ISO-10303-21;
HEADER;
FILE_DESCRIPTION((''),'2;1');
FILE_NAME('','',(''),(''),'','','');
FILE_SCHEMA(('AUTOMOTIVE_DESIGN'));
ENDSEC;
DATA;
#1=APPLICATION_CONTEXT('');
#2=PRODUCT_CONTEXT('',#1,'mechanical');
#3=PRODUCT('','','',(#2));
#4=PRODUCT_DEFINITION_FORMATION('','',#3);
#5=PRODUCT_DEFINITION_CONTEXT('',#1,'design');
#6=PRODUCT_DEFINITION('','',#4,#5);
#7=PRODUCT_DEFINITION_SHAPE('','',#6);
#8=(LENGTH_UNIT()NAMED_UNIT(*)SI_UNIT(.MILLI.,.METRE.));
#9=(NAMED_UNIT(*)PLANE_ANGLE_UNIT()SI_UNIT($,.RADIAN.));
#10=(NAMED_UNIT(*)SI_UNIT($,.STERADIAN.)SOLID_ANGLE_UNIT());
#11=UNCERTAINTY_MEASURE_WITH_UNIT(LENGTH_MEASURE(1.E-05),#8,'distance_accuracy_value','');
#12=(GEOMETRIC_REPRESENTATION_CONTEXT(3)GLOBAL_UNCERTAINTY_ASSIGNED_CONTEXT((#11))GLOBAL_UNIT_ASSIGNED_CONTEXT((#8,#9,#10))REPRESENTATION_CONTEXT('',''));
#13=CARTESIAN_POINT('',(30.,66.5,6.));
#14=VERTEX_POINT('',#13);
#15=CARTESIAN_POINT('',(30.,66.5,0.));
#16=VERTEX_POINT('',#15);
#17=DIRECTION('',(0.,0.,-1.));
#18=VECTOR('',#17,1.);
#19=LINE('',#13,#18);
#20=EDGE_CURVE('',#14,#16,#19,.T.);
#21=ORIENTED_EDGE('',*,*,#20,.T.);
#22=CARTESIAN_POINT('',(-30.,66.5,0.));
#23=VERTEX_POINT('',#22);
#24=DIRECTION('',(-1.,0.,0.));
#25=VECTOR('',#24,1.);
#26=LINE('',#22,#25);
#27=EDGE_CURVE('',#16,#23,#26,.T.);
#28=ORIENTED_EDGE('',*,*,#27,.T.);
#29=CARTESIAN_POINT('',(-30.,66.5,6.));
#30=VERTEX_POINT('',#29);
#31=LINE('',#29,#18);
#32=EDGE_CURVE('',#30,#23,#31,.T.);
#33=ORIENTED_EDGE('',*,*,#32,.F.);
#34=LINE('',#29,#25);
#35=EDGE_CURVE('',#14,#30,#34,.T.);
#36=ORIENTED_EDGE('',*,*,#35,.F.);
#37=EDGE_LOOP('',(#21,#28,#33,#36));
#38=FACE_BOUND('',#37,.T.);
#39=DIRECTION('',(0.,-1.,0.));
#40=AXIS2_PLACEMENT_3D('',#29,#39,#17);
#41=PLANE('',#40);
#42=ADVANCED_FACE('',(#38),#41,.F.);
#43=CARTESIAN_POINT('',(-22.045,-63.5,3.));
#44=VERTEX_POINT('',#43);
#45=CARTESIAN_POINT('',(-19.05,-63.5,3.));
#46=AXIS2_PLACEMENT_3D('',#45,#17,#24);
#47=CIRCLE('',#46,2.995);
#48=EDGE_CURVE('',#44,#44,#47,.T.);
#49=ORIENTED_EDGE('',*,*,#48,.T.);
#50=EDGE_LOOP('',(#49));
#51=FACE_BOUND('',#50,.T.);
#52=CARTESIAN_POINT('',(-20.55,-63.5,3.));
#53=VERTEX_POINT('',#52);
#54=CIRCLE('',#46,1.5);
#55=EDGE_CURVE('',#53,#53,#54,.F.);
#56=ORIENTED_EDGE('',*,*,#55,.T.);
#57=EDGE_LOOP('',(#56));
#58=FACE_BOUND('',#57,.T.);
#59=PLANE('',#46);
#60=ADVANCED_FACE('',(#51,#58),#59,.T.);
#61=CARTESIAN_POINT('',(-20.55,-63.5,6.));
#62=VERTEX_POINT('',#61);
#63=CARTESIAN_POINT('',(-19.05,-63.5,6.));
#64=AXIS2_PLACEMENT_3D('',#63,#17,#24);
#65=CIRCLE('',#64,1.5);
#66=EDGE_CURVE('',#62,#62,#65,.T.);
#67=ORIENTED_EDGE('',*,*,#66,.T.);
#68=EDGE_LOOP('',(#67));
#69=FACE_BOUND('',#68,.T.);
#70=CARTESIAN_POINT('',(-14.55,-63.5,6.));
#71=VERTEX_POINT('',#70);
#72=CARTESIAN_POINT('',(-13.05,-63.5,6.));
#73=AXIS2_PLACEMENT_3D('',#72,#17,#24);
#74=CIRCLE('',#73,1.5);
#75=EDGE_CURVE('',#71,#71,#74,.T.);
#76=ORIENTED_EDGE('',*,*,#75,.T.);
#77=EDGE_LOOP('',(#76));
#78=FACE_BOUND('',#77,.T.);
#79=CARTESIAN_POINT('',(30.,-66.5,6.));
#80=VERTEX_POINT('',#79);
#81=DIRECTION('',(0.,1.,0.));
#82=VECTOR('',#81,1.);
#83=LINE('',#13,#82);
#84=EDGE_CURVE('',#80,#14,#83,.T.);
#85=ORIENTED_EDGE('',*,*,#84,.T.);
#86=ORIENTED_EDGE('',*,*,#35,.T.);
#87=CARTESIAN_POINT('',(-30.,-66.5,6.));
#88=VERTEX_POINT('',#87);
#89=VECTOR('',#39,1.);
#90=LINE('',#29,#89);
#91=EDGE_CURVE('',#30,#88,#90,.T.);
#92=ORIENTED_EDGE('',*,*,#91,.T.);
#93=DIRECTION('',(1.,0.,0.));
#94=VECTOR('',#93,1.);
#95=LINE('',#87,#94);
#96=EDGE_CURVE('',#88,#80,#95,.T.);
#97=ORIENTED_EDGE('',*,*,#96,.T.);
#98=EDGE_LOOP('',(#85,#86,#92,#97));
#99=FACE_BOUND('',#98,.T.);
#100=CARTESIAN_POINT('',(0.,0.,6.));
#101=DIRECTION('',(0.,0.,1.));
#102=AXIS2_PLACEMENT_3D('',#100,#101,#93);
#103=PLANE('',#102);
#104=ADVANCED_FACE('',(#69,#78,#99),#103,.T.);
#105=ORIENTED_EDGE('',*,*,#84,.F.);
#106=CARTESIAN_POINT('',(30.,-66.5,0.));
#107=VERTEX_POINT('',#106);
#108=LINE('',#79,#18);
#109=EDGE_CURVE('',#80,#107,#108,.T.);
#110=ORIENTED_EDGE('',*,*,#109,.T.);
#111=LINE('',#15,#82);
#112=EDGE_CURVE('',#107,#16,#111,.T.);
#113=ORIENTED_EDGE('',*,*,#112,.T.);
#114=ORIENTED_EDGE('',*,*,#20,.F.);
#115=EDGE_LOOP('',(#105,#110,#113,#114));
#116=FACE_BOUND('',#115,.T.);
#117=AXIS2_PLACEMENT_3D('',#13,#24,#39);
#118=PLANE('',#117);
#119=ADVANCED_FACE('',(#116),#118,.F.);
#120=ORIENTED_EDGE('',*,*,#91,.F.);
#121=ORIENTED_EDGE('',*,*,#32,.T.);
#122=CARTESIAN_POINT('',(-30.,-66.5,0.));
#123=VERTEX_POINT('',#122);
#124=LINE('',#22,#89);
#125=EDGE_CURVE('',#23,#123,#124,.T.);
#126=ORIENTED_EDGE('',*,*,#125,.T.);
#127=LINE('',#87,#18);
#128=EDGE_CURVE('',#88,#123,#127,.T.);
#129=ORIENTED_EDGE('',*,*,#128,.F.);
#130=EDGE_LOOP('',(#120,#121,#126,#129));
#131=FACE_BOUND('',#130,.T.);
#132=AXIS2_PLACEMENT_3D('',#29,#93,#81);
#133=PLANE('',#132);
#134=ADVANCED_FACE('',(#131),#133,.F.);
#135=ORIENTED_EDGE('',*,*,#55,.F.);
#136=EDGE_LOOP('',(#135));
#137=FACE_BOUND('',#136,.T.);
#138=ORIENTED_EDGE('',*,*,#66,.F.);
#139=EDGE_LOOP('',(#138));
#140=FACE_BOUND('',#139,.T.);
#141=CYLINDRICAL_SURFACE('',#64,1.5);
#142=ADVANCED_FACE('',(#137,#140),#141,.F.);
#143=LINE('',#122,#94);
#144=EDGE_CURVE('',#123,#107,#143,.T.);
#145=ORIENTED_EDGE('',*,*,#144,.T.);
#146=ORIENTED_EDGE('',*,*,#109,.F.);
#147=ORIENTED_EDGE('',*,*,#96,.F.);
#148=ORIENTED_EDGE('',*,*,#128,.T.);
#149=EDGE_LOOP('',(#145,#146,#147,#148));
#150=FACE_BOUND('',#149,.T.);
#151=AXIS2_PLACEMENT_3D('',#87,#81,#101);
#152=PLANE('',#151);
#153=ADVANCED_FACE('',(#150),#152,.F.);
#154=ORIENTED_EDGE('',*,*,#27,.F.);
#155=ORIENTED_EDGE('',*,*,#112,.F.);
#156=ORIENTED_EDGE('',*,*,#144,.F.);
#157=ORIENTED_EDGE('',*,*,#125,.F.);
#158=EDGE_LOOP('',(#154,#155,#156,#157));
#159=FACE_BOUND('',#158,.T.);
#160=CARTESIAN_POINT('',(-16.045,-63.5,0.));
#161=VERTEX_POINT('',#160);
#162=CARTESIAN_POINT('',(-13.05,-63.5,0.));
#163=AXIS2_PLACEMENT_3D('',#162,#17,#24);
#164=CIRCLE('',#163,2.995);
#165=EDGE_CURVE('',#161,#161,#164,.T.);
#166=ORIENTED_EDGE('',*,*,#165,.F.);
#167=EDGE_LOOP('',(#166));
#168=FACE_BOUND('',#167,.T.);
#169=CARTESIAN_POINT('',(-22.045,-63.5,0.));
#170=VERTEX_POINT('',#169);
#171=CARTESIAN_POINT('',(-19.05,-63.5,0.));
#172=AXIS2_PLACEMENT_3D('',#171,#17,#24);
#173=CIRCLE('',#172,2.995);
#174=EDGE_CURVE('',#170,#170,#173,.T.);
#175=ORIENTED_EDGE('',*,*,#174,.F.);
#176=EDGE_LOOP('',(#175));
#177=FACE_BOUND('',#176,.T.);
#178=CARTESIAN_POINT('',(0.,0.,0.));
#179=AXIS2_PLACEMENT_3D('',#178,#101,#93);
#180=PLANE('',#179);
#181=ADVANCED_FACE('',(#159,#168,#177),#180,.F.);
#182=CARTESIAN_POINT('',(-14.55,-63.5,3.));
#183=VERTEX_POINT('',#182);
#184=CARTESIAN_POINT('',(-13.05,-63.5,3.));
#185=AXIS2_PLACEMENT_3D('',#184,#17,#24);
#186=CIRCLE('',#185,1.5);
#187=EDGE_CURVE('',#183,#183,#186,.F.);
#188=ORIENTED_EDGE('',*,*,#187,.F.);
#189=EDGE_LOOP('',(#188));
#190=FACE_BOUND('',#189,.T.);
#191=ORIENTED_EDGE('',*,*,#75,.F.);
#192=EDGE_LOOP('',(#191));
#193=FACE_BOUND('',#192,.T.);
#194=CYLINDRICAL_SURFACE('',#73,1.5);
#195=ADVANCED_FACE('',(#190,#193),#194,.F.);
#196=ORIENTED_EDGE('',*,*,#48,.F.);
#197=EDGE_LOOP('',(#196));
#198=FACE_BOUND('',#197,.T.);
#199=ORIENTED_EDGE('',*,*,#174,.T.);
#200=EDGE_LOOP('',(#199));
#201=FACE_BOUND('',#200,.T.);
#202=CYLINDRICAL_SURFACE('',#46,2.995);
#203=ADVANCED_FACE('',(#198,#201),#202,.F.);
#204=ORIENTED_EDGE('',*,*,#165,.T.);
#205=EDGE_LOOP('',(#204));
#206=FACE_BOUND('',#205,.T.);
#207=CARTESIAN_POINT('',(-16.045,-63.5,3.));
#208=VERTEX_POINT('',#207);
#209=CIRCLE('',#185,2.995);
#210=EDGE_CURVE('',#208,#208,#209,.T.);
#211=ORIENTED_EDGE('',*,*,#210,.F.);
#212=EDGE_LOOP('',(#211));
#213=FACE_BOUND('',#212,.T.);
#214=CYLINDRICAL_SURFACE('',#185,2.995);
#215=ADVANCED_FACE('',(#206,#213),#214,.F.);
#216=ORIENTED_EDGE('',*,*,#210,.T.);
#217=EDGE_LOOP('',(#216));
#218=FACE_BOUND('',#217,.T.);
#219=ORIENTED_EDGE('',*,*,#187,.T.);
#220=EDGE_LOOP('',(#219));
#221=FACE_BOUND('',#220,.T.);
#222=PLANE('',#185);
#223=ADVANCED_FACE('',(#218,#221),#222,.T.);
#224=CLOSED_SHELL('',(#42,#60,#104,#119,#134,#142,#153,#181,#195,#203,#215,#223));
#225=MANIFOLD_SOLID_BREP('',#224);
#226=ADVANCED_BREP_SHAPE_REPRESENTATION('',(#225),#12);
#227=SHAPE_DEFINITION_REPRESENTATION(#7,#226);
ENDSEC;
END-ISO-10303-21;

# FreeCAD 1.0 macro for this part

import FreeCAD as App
import Part
import Sketcher
from FreeCAD import Vector
Q = App.Units.Quantity

doc = App.newDocument("Part")
body = doc.addObject("PartDesign::Body", "Body")

# Sketch on XY plane
sketch1 = body.newObject("Sketcher::SketchObject", "Sketch")
sketch1.AttachmentSupport = (doc.getObject("XY_Plane"), [""])
sketch1.MapMode = "FlatFace"
sketch1.addGeometry(Part.LineSegment(Vector(-30, 66, 0), Vector(-30, -66, 0)), False)
sketch1.addGeometry(Part.LineSegment(Vector(-30, -66, 0), Vector(30, -66, 0)), False)
sketch1.addGeometry(Part.LineSegment(Vector(30, -66, 0), Vector(30, 66, 0)), False)
sketch1.addGeometry(Part.LineSegment(Vector(30, 66, 0), Vector(-30, 66, 0)), False)
sketch1.addConstraint(Sketcher.Constraint("Coincident", 0, 2, 1, 1))
sketch1.addConstraint(Sketcher.Constraint("Coincident", 1, 2, 2, 1))
sketch1.addConstraint(Sketcher.Constraint("Coincident", 2, 2, 3, 1))
sketch1.addConstraint(Sketcher.Constraint("Coincident", 3, 2, 0, 1))
sketch1.addConstraint(Sketcher.Constraint("Vertical", 0))
sketch1.addConstraint(Sketcher.Constraint("Horizontal", 1))
sketch1.addConstraint(Sketcher.Constraint("Vertical", 2))
sketch1.addConstraint(Sketcher.Constraint("Horizontal", 3))
sketch1.addConstraint(Sketcher.Constraint("Symmetric", 0, 2, 2, 2, -1, 1))
sketch1.addConstraint(Sketcher.Constraint("DistanceX", 1, 1, 1, 2, Q("60 mm")))
sketch1.addConstraint(Sketcher.Constraint("DistanceY", 0, 2, 0, 1, Q("133 mm")))
pad1 = body.newObject("PartDesign::Pad", "Pad")
pad1.Profile = sketch1
pad1.Length = 6

# Sketch on XY plane
sketch2 = body.newObject("Sketcher::SketchObject", "Sketch001")
sketch2.AttachmentSupport = (doc.getObject("XY_Plane"), [""])
sketch2.MapMode = "FlatFace"
sketch2.addGeometry(Part.Circle(Vector(-13.1, -63.5, 0), Vector(0, 0, 1), 1.5), False)
sketch2.addGeometry(Part.Circle(Vector(-19.1, -63.5, 0), Vector(0, 0, 1), 1.5), False)
sketch2.addConstraint(Sketcher.Constraint("Equal", 0, 1))
sketch2.addConstraint(Sketcher.Constraint("Horizontal", 0, 3, 1, 3))
sketch2.addConstraint(Sketcher.Constraint("Diameter", 0, Q("3 mm")))
sketch2.addConstraint(Sketcher.Constraint("DistanceX", 1, 3, 0, 3, Q("6 mm")))
sketch2.addConstraint(Sketcher.Constraint("DistanceY", 0, 3, -1, 1, Q("63.5 mm")))
sketch2.addConstraint(Sketcher.Constraint("DistanceX", 0, 3, -1, 1, Q("13.05 mm")))
pocket1 = body.newObject("PartDesign::Pocket", "Pocket")
pocket1.Profile = sketch2
pocket1.Type = "ThroughAll"
pocket1.Reversed = True

# Sketch on XY plane
sketch3 = body.newObject("Sketcher::SketchObject", "Sketch002")
sketch3.AttachmentSupport = (doc.getObject("XY_Plane"), [""])
sketch3.MapMode = "FlatFace"
sketch3.addGeometry(Part.Circle(Vector(-13.1, -63.5, 0), Vector(0, 0, 1), 3), False)
sketch3.addGeometry(Part.Circle(Vector(-19.1, -63.5, 0), Vector(0, 0, 1), 3), False)
sketch3.addConstraint(Sketcher.Constraint("Equal", 0, 1))
sketch3.addConstraint(Sketcher.Constraint("Horizontal", 0, 3, 1, 3))
sketch3.addConstraint(Sketcher.Constraint("Diameter", 0, Q("5.99 mm")))
sketch3.addConstraint(Sketcher.Constraint("DistanceX", 1, 3, 0, 3, Q("6 mm")))
sketch3.addConstraint(Sketcher.Constraint("DistanceY", 0, 3, -1, 1, Q("63.5 mm")))
sketch3.addConstraint(Sketcher.Constraint("DistanceX", 0, 3, -1, 1, Q("13.05 mm")))
pocket2 = body.newObject("PartDesign::Pocket", "Pocket001")
pocket2.Profile = sketch3
pocket2.Length = 3
pocket2.Reversed = True

doc.recompute()
